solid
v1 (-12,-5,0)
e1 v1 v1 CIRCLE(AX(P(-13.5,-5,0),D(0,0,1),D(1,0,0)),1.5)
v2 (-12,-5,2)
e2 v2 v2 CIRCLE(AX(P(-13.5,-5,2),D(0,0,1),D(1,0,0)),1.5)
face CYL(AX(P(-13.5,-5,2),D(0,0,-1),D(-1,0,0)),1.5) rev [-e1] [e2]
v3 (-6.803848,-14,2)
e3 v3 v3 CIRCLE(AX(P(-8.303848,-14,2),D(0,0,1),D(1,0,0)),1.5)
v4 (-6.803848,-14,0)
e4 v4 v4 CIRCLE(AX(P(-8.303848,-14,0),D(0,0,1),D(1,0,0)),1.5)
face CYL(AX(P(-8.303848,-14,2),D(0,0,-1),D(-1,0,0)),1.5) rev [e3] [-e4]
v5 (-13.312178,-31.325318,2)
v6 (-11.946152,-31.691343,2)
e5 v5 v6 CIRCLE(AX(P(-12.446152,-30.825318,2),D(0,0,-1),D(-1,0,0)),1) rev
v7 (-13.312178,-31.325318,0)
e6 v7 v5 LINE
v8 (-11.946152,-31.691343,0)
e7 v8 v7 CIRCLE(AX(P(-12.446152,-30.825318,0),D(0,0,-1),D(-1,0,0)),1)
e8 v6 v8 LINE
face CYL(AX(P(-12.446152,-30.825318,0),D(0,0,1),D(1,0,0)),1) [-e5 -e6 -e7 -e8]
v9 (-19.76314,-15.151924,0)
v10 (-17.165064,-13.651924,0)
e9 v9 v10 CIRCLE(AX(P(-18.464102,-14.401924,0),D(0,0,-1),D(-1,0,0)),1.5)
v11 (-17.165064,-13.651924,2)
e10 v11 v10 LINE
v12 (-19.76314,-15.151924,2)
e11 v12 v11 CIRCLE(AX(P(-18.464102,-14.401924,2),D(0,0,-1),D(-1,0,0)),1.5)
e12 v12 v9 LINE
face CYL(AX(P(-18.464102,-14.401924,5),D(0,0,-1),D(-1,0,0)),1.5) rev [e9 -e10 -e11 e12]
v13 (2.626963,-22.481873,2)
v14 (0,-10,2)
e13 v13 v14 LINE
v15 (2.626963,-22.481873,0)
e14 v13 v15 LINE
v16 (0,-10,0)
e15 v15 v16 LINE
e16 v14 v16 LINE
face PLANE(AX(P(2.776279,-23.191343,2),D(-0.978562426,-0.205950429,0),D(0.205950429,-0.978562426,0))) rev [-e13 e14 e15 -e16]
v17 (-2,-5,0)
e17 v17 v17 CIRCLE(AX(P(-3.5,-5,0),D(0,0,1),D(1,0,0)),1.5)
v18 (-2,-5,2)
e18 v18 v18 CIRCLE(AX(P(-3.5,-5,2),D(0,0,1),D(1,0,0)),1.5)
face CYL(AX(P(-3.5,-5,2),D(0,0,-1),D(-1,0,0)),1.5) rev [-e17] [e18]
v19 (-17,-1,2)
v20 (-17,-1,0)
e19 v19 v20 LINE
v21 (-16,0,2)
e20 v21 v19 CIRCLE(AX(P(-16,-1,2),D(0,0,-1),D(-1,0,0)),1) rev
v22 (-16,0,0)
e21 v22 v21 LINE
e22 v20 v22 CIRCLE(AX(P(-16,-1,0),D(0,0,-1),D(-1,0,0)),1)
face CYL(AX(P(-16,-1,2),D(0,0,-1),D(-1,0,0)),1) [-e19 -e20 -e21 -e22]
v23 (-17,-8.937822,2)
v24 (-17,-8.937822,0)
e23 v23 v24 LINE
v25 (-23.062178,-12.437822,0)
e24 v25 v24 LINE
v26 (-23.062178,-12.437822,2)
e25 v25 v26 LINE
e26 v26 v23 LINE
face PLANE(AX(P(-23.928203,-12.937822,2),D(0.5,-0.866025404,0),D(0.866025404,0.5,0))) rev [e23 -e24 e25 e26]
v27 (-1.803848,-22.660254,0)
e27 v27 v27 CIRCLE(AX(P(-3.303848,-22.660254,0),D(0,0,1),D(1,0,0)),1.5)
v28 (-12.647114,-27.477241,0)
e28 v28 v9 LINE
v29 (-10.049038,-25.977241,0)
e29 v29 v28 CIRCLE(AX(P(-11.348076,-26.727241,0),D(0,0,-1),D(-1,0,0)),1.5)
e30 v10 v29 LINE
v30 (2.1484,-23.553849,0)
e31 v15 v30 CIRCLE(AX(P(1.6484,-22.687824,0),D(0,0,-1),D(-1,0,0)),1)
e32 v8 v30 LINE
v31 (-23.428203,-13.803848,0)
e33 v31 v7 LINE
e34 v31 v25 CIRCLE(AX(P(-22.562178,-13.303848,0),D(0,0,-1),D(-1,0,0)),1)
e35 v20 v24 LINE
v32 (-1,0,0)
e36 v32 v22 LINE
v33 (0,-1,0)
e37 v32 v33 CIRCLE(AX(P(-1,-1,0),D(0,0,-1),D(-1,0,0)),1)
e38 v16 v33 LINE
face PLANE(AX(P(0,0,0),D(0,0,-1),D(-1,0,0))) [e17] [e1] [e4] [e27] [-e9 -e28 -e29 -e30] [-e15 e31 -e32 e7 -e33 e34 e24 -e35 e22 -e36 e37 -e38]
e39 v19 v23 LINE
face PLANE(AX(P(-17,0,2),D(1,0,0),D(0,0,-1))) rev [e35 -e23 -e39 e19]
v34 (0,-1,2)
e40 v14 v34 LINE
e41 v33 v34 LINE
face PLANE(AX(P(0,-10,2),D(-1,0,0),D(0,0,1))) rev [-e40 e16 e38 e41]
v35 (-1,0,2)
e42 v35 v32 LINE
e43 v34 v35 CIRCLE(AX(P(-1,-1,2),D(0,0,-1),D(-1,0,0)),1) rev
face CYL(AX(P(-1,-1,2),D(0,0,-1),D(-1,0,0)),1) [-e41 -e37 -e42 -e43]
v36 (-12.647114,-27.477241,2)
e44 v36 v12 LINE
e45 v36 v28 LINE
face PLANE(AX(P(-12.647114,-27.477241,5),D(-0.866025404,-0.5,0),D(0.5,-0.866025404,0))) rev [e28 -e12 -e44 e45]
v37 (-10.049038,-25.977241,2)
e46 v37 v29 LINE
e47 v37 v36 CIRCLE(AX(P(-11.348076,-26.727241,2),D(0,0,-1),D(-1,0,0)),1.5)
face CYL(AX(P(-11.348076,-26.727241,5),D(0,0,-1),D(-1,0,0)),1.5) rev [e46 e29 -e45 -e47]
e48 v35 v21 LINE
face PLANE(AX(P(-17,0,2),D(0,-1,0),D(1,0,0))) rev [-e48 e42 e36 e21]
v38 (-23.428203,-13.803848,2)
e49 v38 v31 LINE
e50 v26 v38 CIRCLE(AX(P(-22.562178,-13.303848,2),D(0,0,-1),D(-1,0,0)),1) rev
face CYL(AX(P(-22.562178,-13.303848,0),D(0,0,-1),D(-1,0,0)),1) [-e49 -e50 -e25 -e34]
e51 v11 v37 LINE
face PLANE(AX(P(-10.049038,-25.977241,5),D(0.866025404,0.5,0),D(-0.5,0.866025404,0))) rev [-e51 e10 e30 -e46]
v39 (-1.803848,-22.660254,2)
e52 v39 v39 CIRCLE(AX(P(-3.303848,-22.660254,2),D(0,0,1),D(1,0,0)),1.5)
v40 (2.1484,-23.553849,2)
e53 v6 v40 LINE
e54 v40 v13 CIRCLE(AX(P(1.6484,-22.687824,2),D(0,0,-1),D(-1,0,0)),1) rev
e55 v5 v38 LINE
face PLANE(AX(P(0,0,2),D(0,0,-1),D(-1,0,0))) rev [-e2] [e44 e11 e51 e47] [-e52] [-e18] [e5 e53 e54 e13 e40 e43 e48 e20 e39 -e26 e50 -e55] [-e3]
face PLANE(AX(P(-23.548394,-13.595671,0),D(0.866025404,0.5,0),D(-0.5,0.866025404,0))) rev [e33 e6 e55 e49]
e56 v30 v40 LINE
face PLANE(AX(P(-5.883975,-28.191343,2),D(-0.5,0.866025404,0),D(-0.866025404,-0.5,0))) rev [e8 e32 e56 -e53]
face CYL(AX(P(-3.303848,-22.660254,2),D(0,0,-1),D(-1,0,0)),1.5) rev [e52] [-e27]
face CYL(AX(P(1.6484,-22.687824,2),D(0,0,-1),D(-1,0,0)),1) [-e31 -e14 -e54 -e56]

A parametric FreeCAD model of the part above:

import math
import FreeCAD as App
import Part
import Sketcher
Q = App.Units.Quantity


def edges_at(feature, points):
    """Names of the edges that pass closest to the given points."""
    edges = feature.Shape.Edges
    near = lambda p: min(range(len(edges)), key=lambda i: edges[i].distToShape(Part.Vertex(*p))[0])
    return sorted({f"Edge{near(p) + 1}" for p in points})

doc = App.newDocument("Part")
body = doc.addObject("PartDesign::Body", "Body")

sketch1 = body.newObject("Sketcher::SketchObject", "Sketch")
sketch1.AttachmentSupport = (doc.getObject("XY_Plane"), [""])
sketch1.MapMode = "FlatFace"
sketch1.addGeometry([
    Part.LineSegment(App.Vector(0, 0, 0), App.Vector(-17, 0, 0)),
    Part.LineSegment(App.Vector(-17, 0, 0), App.Vector(-17, -8.937822, 0)),
    Part.LineSegment(App.Vector(-17, -8.937822, 0), App.Vector(-5.883975, -28.191343, 0)),
    Part.LineSegment(App.Vector(-5.883975, -28.191343, 0), App.Vector(2.776279, -23.191343, 0)),
    Part.LineSegment(App.Vector(2.776279, -23.191343, 0), App.Vector(0, -10, 0)),
    Part.LineSegment(App.Vector(0, -10, 0), App.Vector(0, 0, 0)),
    Part.Circle(App.Vector(-3.303848, -22.660254, 0), App.Vector(0, 0, 1), 1.5),
    Part.Circle(App.Vector(-8.303848, -14, 0), App.Vector(0, 0, 1), 1.5),
    Part.Circle(App.Vector(-3.5, -5, 0), App.Vector(0, 0, 1), 1.5),
    Part.Circle(App.Vector(-13.5, -5, 0), App.Vector(0, 0, 1), 1.5),
], False)
sketch1.addConstraint([
    Sketcher.Constraint("Coincident", 0, 2, 1, 1),
    Sketcher.Constraint("Coincident", 1, 2, 2, 1),
    Sketcher.Constraint("Coincident", 2, 2, 3, 1),
    Sketcher.Constraint("Coincident", 3, 2, 4, 1),
    Sketcher.Constraint("Coincident", 4, 2, 5, 1),
    Sketcher.Constraint("Coincident", 5, 2, 0, 1),
    Sketcher.Constraint("Horizontal", 0),
    Sketcher.Constraint("Vertical", 1),
    Sketcher.Constraint("Vertical", 5),
    Sketcher.Constraint("Coincident", 5, 2, -1, 1),
    Sketcher.Constraint("Equal", 6, 7),
    Sketcher.Constraint("Equal", 7, 8),
    Sketcher.Constraint("Equal", 8, 9),
    Sketcher.Constraint("Perpendicular", 2, 3),
    Sketcher.Constraint("Horizontal", 8, 3, 9, 3),
    Sketcher.Constraint("Diameter", 6, 3.0),
    Sketcher.Constraint("DistanceX", 0, 2, 0, 1, 17.0),
    Sketcher.Constraint("DistanceY", 5, 1, 5, 2, 10.0),
    Sketcher.Constraint("Angle", 2, Q("-60 deg")),
    Sketcher.Constraint("Distance", 3, 10.0),
    Sketcher.Constraint("DistanceY", 7, 3, -1, 1, 14.0),
    Sketcher.Constraint("DistanceY", 8, 3, -1, 1, 5.0),
    Sketcher.Constraint("DistanceX", 7, 3, 6, 3, 5.0),
    Sketcher.Constraint("DistanceX", 9, 3, 8, 3, 10.0),
    Sketcher.Constraint("DistanceX", 8, 3, -1, 1, 3.5),
    Sketcher.Constraint("Distance", 2, 22.232051),
    Sketcher.Constraint("Distance", 4, 13.480328),
    Sketcher.Constraint("DistanceY", 6, 3, 1, 2, 13.722432),
    Sketcher.Constraint("DistanceX", 6, 3, -1, 1, 3.303848),
])
pad1 = body.newObject("PartDesign::Pad", "Pad")
pad1.Profile = sketch1
pad1.Length = 2

sketch2 = body.newObject("Sketcher::SketchObject", "Sketch001")
sketch2.Placement = App.Placement(App.Vector(-16.620191, -9.595671, 0), App.Rotation(App.Vector(0, 0, 1), App.Vector(-0.5, 0.866025404, 0), App.Vector(-0.866025404, -0.5, 0), "ZXY"))
sketch2.addGeometry([
    Part.LineSegment(App.Vector(0, 0.759619, 0), App.Vector(0, -21.472432, 0)),
    Part.LineSegment(App.Vector(0, -21.472432, 0), App.Vector(2, -21.472432, 0)),
    Part.LineSegment(App.Vector(2, -21.472432, 0), App.Vector(2, 0.759619, 0)),
    Part.LineSegment(App.Vector(2, 0.759619, 0), App.Vector(0, 0.759619, 0)),
], False)
sketch2.addConstraint([
    Sketcher.Constraint("Coincident", 0, 2, 1, 1),
    Sketcher.Constraint("Coincident", 1, 2, 2, 1),
    Sketcher.Constraint("Coincident", 2, 2, 3, 1),
    Sketcher.Constraint("Coincident", 3, 2, 0, 1),
    Sketcher.Constraint("Vertical", 0),
    Sketcher.Constraint("Horizontal", 1),
    Sketcher.Constraint("Vertical", 2),
    Sketcher.Constraint("Horizontal", 3),
    Sketcher.Constraint("PointOnObject", 0, 2, -2),
    Sketcher.Constraint("DistanceX", 1, 1, 1, 2, 2.0),
    Sketcher.Constraint("DistanceY", 0, 2, 0, 1, 22.232051),
    Sketcher.Constraint("DistanceY", 0, 2, -1, 1, 21.472432),
])
pad2 = body.newObject("PartDesign::Pad", "Pad001")
pad2.Profile = sketch2
pad2.Length = 8

sketch3 = body.newObject("Sketcher::SketchObject", "Sketch002")
sketch3.AttachmentSupport = (doc.getObject("XY_Plane"), [""])
sketch3.MapMode = "FlatFace"
sketch3.addGeometry([
    Part.LineSegment(App.Vector(-17.165064, -13.651924, 0), App.Vector(-10.049038, -25.977241, 0)),
    Part.ArcOfCircle(Part.Circle(App.Vector(-11.348076, -26.727241, 0), App.Vector(0, 0, 1), 1.5), math.radians(-150), math.radians(30)),
    Part.LineSegment(App.Vector(-12.647114, -27.477241, 0), App.Vector(-19.76314, -15.151924, 0)),
    Part.ArcOfCircle(Part.Circle(App.Vector(-18.464102, -14.401924, 0), App.Vector(0, 0, 1), 1.5), math.radians(30), math.radians(210)),
], False)
sketch3.addConstraint([
    Sketcher.Constraint("Tangent", 0, 2, 1, 2),
    Sketcher.Constraint("Tangent", 1, 1, 2, 1),
    Sketcher.Constraint("Tangent", 2, 2, 3, 2),
    Sketcher.Constraint("Tangent", 3, 1, 0, 1),
    Sketcher.Constraint("Equal", 1, 3),
    Sketcher.Constraint("Radius", 1, 1.5),
    Sketcher.Constraint("Angle", 0, Q("-60 deg")),
    Sketcher.Constraint("DistanceX", 3, 3, -1, 1, 18.464102),
    Sketcher.Constraint("DistanceX", 2, 2, 0, 2, 9.714102),
    Sketcher.Constraint("DistanceY", 1, 3, -1, 1, 26.727241),
])
pocket1 = body.newObject("PartDesign::Pocket", "Pocket")
pocket1.Profile = sketch3
pocket1.Length = 5
pocket1.Reversed = True
doc.recompute()

fillet = body.newObject("PartDesign::Fillet", "Fillet")
fillet.Base = (pocket1, edges_at(pocket1, [
    (2.776, -23.191, 1),
    (-17, 0, 1),
    (0, 0, 1),
    (-23.928, -12.938, 1),
    (-12.812, -32.191, 1),
]))
fillet.Radius = 1

doc.recompute()
